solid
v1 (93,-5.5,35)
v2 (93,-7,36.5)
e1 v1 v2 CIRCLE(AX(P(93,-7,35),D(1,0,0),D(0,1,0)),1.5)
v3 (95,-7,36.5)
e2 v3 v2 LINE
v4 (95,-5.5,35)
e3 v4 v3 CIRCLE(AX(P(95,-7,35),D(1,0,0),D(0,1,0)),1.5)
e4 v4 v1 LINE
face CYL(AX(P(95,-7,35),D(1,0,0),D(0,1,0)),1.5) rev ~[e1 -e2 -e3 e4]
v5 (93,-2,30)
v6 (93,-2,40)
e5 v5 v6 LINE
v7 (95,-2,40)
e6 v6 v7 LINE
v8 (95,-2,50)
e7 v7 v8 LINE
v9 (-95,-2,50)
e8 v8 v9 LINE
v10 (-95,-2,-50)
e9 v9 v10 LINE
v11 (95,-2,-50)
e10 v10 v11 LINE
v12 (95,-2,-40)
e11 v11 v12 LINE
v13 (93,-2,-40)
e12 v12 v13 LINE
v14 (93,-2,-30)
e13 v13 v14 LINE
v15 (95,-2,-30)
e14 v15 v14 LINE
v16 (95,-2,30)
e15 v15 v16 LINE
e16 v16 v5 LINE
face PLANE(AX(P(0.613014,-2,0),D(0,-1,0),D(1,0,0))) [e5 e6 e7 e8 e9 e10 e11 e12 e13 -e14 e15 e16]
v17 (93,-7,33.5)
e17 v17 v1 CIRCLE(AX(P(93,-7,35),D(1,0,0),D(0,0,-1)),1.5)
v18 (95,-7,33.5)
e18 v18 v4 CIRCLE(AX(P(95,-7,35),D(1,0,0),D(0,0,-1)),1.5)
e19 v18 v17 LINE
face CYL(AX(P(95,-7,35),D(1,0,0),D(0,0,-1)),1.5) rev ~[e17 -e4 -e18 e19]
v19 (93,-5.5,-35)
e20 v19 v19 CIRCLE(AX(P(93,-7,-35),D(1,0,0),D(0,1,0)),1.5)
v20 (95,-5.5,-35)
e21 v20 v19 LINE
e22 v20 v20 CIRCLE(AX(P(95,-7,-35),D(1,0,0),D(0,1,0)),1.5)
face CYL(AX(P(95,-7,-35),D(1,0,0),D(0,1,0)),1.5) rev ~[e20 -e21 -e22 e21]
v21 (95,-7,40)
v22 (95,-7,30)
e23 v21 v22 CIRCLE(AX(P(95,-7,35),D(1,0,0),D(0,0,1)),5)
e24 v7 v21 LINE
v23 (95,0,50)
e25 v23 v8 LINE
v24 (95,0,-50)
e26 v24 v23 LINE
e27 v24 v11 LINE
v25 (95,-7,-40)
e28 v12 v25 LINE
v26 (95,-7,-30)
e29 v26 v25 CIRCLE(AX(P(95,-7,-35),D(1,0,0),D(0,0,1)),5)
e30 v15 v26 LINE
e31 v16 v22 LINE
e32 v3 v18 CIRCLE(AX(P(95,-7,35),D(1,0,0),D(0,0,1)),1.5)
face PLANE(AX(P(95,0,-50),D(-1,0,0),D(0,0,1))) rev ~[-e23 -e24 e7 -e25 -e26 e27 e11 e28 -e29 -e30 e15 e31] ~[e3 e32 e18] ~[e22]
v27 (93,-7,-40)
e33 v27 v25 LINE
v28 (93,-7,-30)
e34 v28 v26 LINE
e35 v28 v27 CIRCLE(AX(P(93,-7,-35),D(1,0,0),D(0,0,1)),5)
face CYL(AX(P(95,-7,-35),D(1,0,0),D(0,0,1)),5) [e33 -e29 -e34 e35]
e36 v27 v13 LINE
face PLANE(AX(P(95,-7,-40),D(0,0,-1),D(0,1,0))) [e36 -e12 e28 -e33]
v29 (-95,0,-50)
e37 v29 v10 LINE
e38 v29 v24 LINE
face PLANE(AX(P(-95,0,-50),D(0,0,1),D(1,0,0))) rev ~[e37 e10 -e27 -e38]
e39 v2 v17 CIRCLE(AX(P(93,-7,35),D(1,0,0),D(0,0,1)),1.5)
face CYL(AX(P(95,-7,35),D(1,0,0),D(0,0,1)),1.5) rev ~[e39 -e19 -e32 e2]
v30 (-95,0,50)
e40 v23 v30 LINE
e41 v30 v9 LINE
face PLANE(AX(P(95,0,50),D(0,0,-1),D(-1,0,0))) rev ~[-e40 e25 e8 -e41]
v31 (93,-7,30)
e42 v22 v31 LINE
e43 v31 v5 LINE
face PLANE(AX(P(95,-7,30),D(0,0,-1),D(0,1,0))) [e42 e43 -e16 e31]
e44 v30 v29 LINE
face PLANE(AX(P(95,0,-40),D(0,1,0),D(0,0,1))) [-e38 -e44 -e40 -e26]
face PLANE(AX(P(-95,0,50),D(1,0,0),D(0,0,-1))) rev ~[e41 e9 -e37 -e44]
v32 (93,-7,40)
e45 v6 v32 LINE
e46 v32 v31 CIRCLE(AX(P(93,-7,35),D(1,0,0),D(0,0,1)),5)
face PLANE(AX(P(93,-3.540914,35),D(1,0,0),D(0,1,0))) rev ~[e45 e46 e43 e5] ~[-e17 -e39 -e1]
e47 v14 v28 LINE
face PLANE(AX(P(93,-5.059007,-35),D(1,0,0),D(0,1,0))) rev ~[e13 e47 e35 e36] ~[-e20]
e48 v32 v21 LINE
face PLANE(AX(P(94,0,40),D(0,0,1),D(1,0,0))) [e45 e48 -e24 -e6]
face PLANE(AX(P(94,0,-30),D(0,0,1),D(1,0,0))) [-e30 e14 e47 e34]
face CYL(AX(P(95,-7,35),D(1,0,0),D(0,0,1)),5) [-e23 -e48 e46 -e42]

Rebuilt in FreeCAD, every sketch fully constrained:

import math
import FreeCAD as App
import Part
import Sketcher
from FreeCAD import Vector

doc = App.newDocument("Part")
body = doc.addObject("PartDesign::Body", "Body")

sketch1 = doc.addObject("Sketcher::SketchObject", "Sketch")
body.addObject(sketch1)
sketch1.AttachmentSupport = (doc.XZ_Plane, [""])
sketch1.MapMode = "FlatFace"
sketch1.addGeometry([
    Part.LineSegment(Vector(-95, -50, 0), Vector(95, -50, 0)),
    Part.LineSegment(Vector(95, -50, 0), Vector(95, -40, 0)),
    Part.LineSegment(Vector(95, -40, 0), Vector(94, -40, 0)),
    Part.LineSegment(Vector(94, -40, 0), Vector(94, -30, 0)),
    Part.LineSegment(Vector(94, -30, 0), Vector(95, -30, 0)),
    Part.LineSegment(Vector(95, -30, 0), Vector(95, 30, 0)),
    Part.LineSegment(Vector(95, 30, 0), Vector(94, 30, 0)),
    Part.LineSegment(Vector(94, 30, 0), Vector(94, 40, 0)),
    Part.LineSegment(Vector(94, 40, 0), Vector(95, 40, 0)),
    Part.LineSegment(Vector(95, 40, 0), Vector(95, 50, 0)),
    Part.LineSegment(Vector(95, 50, 0), Vector(-95, 50, 0)),
    Part.LineSegment(Vector(-95, 50, 0), Vector(-95, -50, 0)),
], False)
sketch1.addConstraint([
    Sketcher.Constraint("Coincident", 0, 2, 1, 1),
    Sketcher.Constraint("Coincident", 1, 2, 2, 1),
    Sketcher.Constraint("Coincident", 2, 2, 3, 1),
    Sketcher.Constraint("Coincident", 3, 2, 4, 1),
    Sketcher.Constraint("Coincident", 4, 2, 5, 1),
    Sketcher.Constraint("Coincident", 5, 2, 6, 1),
    Sketcher.Constraint("Coincident", 6, 2, 7, 1),
    Sketcher.Constraint("Coincident", 7, 2, 8, 1),
    Sketcher.Constraint("Coincident", 8, 2, 9, 1),
    Sketcher.Constraint("Coincident", 9, 2, 10, 1),
    Sketcher.Constraint("Coincident", 10, 2, 11, 1),
    Sketcher.Constraint("Coincident", 11, 2, 0, 1),
    Sketcher.Constraint("Horizontal", 0),
    Sketcher.Constraint("Vertical", 1),
    Sketcher.Constraint("Horizontal", 2),
    Sketcher.Constraint("Vertical", 3),
    Sketcher.Constraint("Horizontal", 4),
    Sketcher.Constraint("Vertical", 5),
    Sketcher.Constraint("Horizontal", 6),
    Sketcher.Constraint("Vertical", 7),
    Sketcher.Constraint("Horizontal", 8),
    Sketcher.Constraint("Vertical", 9),
    Sketcher.Constraint("Horizontal", 10),
    Sketcher.Constraint("Vertical", 11),
    Sketcher.Constraint("Symmetric", 0, 2, 10, 2, -1, 1),
    Sketcher.Constraint("Symmetric", 3, 2, 6, 2, -1),
    Sketcher.Constraint("Symmetric", 1, 2, 8, 2, -1),
    Sketcher.Constraint("Vertical", 1, 2, 4, 2),
    Sketcher.Constraint("Equal", 1, 3),
    Sketcher.Constraint("DistanceX", 0, 1, 0, 2, 190.0),
    Sketcher.Constraint("DistanceX", 2, 2, 2, 1, 1.0),
    Sketcher.Constraint("DistanceY", 1, 1, 1, 2, 10.0),
    Sketcher.Constraint("DistanceY", 5, 1, 5, 2, 60.0),
])
pad1 = doc.addObject("PartDesign::Pad", "Pad")
body.addObject(pad1)
pad1.Profile = sketch1
pad1.Length = 2
body2 = doc.addObject("PartDesign::Body", "Body001")

sketch2 = doc.addObject("Sketcher::SketchObject", "Sketch001")
body2.addObject(sketch2)
sketch2.AttachmentSupport = (doc.getObject("XZ_Plane001"), [""])
sketch2.MapMode = "FlatFace"
sketch2.addGeometry([
    Part.LineSegment(Vector(94, 40, 0), Vector(94, 30, 0)),
    Part.LineSegment(Vector(94, 30, 0), Vector(95, 30, 0)),
    Part.LineSegment(Vector(95, 30, 0), Vector(95, 40, 0)),
    Part.LineSegment(Vector(95, 40, 0), Vector(94, 40, 0)),
], False)
sketch2.addConstraint([
    Sketcher.Constraint("Coincident", 0, 2, 1, 1),
    Sketcher.Constraint("Coincident", 1, 2, 2, 1),
    Sketcher.Constraint("Coincident", 2, 2, 3, 1),
    Sketcher.Constraint("Coincident", 3, 2, 0, 1),
    Sketcher.Constraint("Vertical", 0),
    Sketcher.Constraint("Horizontal", 1),
    Sketcher.Constraint("Vertical", 2),
    Sketcher.Constraint("Horizontal", 3),
    Sketcher.Constraint("DistanceX", 1, 1, 1, 2, 1.0),
    Sketcher.Constraint("DistanceY", 0, 2, 0, 1, 10.0),
    Sketcher.Constraint("DistanceX", -1, 1, 0, 2, 94.0),
    Sketcher.Constraint("DistanceY", -1, 1, 0, 2, 30.0),
])
pad2 = doc.addObject("PartDesign::Pad", "Pad001")
body2.addObject(pad2)
pad2.Profile = sketch2
pad2.Length = 7
body3 = doc.addObject("PartDesign::Body", "Body002")

sketch3 = doc.addObject("Sketcher::SketchObject", "Sketch002")
body3.addObject(sketch3)
sketch3.AttachmentSupport = (doc.getObject("XZ_Plane002"), [""])
sketch3.MapMode = "FlatFace"
sketch3.addGeometry([
    Part.LineSegment(Vector(94, -30, 0), Vector(94, -40, 0)),
    Part.LineSegment(Vector(94, -40, 0), Vector(95, -40, 0)),
    Part.LineSegment(Vector(95, -40, 0), Vector(95, -30, 0)),
    Part.LineSegment(Vector(95, -30, 0), Vector(94, -30, 0)),
], False)
sketch3.addConstraint([
    Sketcher.Constraint("Coincident", 0, 2, 1, 1),
    Sketcher.Constraint("Coincident", 1, 2, 2, 1),
    Sketcher.Constraint("Coincident", 2, 2, 3, 1),
    Sketcher.Constraint("Coincident", 3, 2, 0, 1),
    Sketcher.Constraint("Vertical", 0),
    Sketcher.Constraint("Horizontal", 1),
    Sketcher.Constraint("Vertical", 2),
    Sketcher.Constraint("Horizontal", 3),
    Sketcher.Constraint("DistanceX", 1, 1, 1, 2, 1.0),
    Sketcher.Constraint("DistanceY", 0, 2, 0, 1, 10.0),
    Sketcher.Constraint("DistanceX", -1, 1, 0, 2, 94.0),
    Sketcher.Constraint("DistanceY", 0, 2, -1, 1, 40.0),
])
pad3 = doc.addObject("PartDesign::Pad", "Pad002")
body3.addObject(pad3)
pad3.Profile = sketch3
pad3.Length = 7
doc.recompute()

boolean = doc.addObject("PartDesign::Boolean", "Boolean")
body.addObject(boolean)
boolean.Type = "Fuse"
boolean.addObjects([body2])
doc.recompute()

boolean2 = doc.addObject("PartDesign::Boolean", "Boolean001")
body.addObject(boolean2)
boolean2.Type = "Fuse"
boolean2.addObjects([body3])

sketch4 = doc.addObject("Sketcher::SketchObject", "Sketch003")
body.addObject(sketch4)
sketch4.AttachmentSupport = (doc.YZ_Plane, [""])
sketch4.MapMode = "FlatFace"
sketch4.AttachmentOffset = App.Placement(Vector(0, 0, 95), App.Rotation())
sketch4.addGeometry([
    Part.LineSegment(Vector(0, -30, 0), Vector(-7, -30, 0)),
    Part.ArcOfCircle(Part.Circle(Vector(-7, -35, 0), Vector(0, 0, 1), 5), math.radians(90), math.radians(270)),
    Part.LineSegment(Vector(-7, -40, 0), Vector(0, -40, 0)),
    Part.LineSegment(Vector(0, -40, 0), Vector(0, -30, 0)),
    Part.LineSegment(Vector(0, 40, 0), Vector(-7, 40, 0)),
    Part.ArcOfCircle(Part.Circle(Vector(-7, 35, 0), Vector(0, 0, 1), 5), math.radians(90), math.radians(270)),
    Part.LineSegment(Vector(-7, 30, 0), Vector(0, 30, 0)),
    Part.LineSegment(Vector(0, 30, 0), Vector(0, 40, 0)),
], False)
sketch4.addConstraint([
    Sketcher.Constraint("Tangent", 0, 2, 1, 1),
    Sketcher.Constraint("Tangent", 1, 2, 2, 1),
    Sketcher.Constraint("Coincident", 2, 2, 3, 1),
    Sketcher.Constraint("Coincident", 3, 2, 0, 1),
    Sketcher.Constraint("Tangent", 4, 2, 5, 1),
    Sketcher.Constraint("Tangent", 5, 2, 6, 1),
    Sketcher.Constraint("Coincident", 6, 2, 7, 1),
    Sketcher.Constraint("Coincident", 7, 2, 4, 1),
    Sketcher.Constraint("Horizontal", 0),
    Sketcher.Constraint("Horizontal", 2),
    Sketcher.Constraint("Vertical", 3),
    Sketcher.Constraint("Horizontal", 4),
    Sketcher.Constraint("Horizontal", 6),
    Sketcher.Constraint("Vertical", 7),
    Sketcher.Constraint("Equal", 1, 5),
    Sketcher.Constraint("Symmetric", 3, 2, 6, 2, -1, 1),
    Sketcher.Constraint("PointOnObject", 2, 2, -2),
    Sketcher.Constraint("Vertical", 1, 3, 5, 3),
    Sketcher.Constraint("Radius", 1, 5.0),
    Sketcher.Constraint("DistanceX", 0, 2, 0, 1, 7.0),
    Sketcher.Constraint("DistanceY", 1, 3, -1, 1, 35.0),
])
pad4 = doc.addObject("PartDesign::Pad", "Pad003")
body.addObject(pad4)
pad4.Profile = sketch4
pad4.Length = 2
pad4.Reversed = True

sketch5 = doc.addObject("Sketcher::SketchObject", "Sketch004")
body.addObject(sketch5)
sketch5.AttachmentSupport = (doc.YZ_Plane, [""])
sketch5.MapMode = "FlatFace"
sketch5.AttachmentOffset = App.Placement(Vector(0, 0, 95), App.Rotation())
sketch5.addGeometry([
    Part.Circle(Vector(-7, -35, 0), Vector(0, 0, 1), 1.5),
    Part.ArcOfCircle(Part.Circle(Vector(-7, 35, 0), Vector(0, 0, 1), 1.5), math.radians(90), math.radians(270)),
    Part.ArcOfCircle(Part.Circle(Vector(-7, 35, 0), Vector(0, 0, 1), 1.5), math.radians(-90), math.radians(0)),
    Part.ArcOfCircle(Part.Circle(Vector(-7, 35, 0), Vector(0, 0, 1), 1.5), math.radians(0), math.radians(90)),
], False)
sketch5.addConstraint([
    Sketcher.Constraint("Tangent", 1, 2, 2, 1),
    Sketcher.Constraint("Tangent", 2, 2, 3, 1),
    Sketcher.Constraint("Tangent", 3, 2, 1, 1),
    Sketcher.Constraint("Equal", 0, 1),
    Sketcher.Constraint("Symmetric", 0, 3, 1, 3, -1),
    Sketcher.Constraint("Horizontal", 3, 3, 2, 2),
    Sketcher.Constraint("Vertical", 3, 3, 1, 2),
    Sketcher.Constraint("Vertical", 1, 2, 3, 2),
    Sketcher.Constraint("Diameter", 0, 3.0),
    Sketcher.Constraint("DistanceX", 0, 3, -1, 1, 7.0),
    Sketcher.Constraint("DistanceY", 0, 3, -1, 1, 35.0),
])
pocket1 = doc.addObject("PartDesign::Pocket", "Pocket")
body.addObject(pocket1)
pocket1.Profile = sketch5
pocket1.Length = 25

doc.recompute()
